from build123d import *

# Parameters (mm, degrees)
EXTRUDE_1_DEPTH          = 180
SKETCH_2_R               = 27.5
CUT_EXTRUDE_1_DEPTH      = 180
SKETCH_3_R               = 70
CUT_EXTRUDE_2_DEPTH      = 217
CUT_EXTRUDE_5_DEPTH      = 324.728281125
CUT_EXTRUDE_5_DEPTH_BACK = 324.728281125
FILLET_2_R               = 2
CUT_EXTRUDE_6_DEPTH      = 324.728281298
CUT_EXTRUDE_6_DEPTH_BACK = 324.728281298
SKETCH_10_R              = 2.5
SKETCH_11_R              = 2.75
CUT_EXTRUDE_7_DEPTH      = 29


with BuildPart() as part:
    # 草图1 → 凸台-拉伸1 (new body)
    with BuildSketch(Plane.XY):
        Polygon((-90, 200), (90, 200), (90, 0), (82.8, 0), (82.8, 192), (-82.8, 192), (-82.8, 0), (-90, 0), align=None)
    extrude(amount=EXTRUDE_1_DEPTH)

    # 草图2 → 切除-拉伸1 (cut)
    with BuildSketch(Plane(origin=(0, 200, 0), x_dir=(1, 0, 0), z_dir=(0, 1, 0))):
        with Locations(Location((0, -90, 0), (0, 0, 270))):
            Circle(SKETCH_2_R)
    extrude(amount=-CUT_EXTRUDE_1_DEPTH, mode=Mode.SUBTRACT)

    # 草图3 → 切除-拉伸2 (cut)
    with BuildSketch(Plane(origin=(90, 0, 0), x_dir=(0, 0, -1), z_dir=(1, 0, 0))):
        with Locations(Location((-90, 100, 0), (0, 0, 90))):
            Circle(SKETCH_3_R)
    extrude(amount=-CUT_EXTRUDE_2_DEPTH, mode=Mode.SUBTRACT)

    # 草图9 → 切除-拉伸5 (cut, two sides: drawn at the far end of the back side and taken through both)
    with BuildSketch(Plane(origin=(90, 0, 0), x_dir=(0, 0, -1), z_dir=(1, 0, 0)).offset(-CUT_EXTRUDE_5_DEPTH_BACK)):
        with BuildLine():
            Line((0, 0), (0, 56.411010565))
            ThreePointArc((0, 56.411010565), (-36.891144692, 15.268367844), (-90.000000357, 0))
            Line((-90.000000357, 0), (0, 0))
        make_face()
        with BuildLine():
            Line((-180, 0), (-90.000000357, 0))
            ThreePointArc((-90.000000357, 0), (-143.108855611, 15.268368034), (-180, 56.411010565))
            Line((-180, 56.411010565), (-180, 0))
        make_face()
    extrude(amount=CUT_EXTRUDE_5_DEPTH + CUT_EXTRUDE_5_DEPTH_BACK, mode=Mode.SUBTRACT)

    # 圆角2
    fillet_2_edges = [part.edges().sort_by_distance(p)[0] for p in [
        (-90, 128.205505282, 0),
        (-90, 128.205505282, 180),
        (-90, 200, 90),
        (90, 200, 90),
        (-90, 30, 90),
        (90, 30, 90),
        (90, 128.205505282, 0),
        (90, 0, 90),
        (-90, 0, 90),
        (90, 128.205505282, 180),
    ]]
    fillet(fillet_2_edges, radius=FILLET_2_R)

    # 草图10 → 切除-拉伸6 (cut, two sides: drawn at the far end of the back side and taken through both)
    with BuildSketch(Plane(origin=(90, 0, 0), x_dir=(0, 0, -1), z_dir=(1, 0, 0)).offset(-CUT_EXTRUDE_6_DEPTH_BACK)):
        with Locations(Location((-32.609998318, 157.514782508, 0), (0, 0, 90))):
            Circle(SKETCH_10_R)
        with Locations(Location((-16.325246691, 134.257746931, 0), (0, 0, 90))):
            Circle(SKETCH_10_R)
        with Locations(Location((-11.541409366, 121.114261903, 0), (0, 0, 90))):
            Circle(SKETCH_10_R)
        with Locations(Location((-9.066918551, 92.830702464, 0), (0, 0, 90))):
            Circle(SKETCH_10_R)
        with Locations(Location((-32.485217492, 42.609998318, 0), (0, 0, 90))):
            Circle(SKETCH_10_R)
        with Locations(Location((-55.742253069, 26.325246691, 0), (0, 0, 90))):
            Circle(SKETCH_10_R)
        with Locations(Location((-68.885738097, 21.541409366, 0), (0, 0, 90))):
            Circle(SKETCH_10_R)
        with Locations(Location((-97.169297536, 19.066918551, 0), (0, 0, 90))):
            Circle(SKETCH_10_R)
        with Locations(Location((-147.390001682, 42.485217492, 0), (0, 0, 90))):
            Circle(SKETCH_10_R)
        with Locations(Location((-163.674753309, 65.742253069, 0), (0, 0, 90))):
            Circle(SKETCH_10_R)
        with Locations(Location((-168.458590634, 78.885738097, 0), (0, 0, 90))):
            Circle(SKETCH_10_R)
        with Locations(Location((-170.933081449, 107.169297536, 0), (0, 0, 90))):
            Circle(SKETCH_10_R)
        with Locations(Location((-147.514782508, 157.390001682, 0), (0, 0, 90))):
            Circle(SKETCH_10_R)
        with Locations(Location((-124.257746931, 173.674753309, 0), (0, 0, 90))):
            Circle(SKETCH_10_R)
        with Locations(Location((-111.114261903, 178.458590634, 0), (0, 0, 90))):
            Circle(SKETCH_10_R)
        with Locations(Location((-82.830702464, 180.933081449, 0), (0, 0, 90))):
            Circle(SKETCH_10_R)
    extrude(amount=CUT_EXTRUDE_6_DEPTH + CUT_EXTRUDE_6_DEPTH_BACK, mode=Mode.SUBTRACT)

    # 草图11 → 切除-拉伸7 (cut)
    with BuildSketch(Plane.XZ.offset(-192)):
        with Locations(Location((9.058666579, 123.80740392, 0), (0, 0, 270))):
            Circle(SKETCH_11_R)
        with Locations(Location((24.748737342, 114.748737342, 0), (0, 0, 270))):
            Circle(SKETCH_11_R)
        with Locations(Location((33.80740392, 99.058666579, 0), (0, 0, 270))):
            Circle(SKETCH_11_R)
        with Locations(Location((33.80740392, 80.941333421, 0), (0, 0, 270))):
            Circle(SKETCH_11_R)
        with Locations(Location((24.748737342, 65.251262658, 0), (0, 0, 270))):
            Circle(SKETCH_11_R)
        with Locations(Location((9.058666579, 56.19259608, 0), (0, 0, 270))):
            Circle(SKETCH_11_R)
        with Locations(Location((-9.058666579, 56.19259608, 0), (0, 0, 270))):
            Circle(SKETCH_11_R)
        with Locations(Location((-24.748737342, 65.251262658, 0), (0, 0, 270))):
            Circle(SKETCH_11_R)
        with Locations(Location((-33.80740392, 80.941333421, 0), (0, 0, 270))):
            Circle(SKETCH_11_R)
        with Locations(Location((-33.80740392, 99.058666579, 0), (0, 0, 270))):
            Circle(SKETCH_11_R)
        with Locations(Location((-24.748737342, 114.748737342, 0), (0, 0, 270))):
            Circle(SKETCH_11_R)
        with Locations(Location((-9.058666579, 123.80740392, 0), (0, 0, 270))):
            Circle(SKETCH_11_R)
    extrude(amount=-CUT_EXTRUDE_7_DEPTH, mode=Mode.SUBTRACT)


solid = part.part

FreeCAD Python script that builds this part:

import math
import FreeCAD as App
import Part
import Sketcher
from FreeCAD import Vector
Q = App.Units.Quantity


def edges_at(feature, points):
    """Names of the edges that pass closest to the given points."""
    edges = feature.Shape.Edges
    near = lambda p: min(range(len(edges)), key=lambda i: edges[i].distToShape(Part.Vertex(*p))[0])
    return sorted({f"Edge{near(p) + 1}" for p in points})

doc = App.newDocument("Part")
body = doc.addObject("PartDesign::Body", "Body")

# Sketch on XY plane
sketch1 = body.newObject("Sketcher::SketchObject", "Sketch")
sketch1.AttachmentSupport = (doc.getObject("XY_Plane"), [""])
sketch1.MapMode = "FlatFace"
sketch1.addGeometry([
    Part.LineSegment(Vector(90, 200, 0), Vector(-90, 200, 0)),  # 0
    Part.LineSegment(Vector(-90, 200, 0), Vector(-90, 0, 0)),  # 1
    Part.LineSegment(Vector(-90, 0, 0), Vector(-83, 0, 0)),  # 2
    Part.LineSegment(Vector(-83, 0, 0), Vector(-83, 192, 0)),  # 3
    Part.LineSegment(Vector(-83, 192, 0), Vector(83, 192, 0)),  # 4
    Part.LineSegment(Vector(83, 192, 0), Vector(83, 0, 0)),  # 5
    Part.LineSegment(Vector(83, 0, 0), Vector(90, 0, 0)),  # 6
    Part.LineSegment(Vector(90, 0, 0), Vector(90, 200, 0)),  # 7
], False)
sketch1.addConstraint([
    Sketcher.Constraint("Coincident", 0, 2, 1, 1),
    Sketcher.Constraint("Coincident", 1, 2, 2, 1),
    Sketcher.Constraint("Coincident", 2, 2, 3, 1),
    Sketcher.Constraint("Coincident", 3, 2, 4, 1),
    Sketcher.Constraint("Coincident", 4, 2, 5, 1),
    Sketcher.Constraint("Coincident", 5, 2, 6, 1),
    Sketcher.Constraint("Coincident", 6, 2, 7, 1),
    Sketcher.Constraint("Coincident", 7, 2, 0, 1),
    Sketcher.Constraint("Horizontal", 0),
    Sketcher.Constraint("Vertical", 1),
    Sketcher.Constraint("Horizontal", 2),
    Sketcher.Constraint("Vertical", 3),
    Sketcher.Constraint("Horizontal", 4),
    Sketcher.Constraint("Vertical", 5),
    Sketcher.Constraint("Horizontal", 6),
    Sketcher.Constraint("Vertical", 7),
    Sketcher.Constraint("Symmetric", 2, 2, 5, 2, -1, 1),
    Sketcher.Constraint("Symmetric", 1, 2, 6, 2, -2),
    Sketcher.Constraint("DistanceX", 0, 2, 0, 1, Q("180 mm")),
    Sketcher.Constraint("DistanceY", 1, 2, 1, 1, Q("200 mm")),
    Sketcher.Constraint("DistanceY", 3, 1, 3, 2, Q("192 mm")),
    Sketcher.Constraint("DistanceX", 2, 1, 2, 2, Q("7.2 mm")),
])
pad1 = body.newObject("PartDesign::Pad", "Pad")
pad1.Profile = sketch1
pad1.Length = 180

# Sketch on XZ plane
sketch2 = body.newObject("Sketcher::SketchObject", "Sketch001")
sketch2.AttachmentSupport = (doc.getObject("XZ_Plane"), [""])
sketch2.MapMode = "FlatFace"
sketch2.AttachmentOffset = App.Placement(Vector(0, 0, -200), App.Rotation())
sketch2.addGeometry(Part.Circle(Vector(0, 90, 0), Vector(0, 0, 1), 28), False)
sketch2.addConstraint([
    Sketcher.Constraint("PointOnObject", 0, 3, -2),
    Sketcher.Constraint("Diameter", 0, Q("55 mm")),
    Sketcher.Constraint("DistanceY", -1, 1, 0, 3, Q("90 mm")),
])
pocket1 = body.newObject("PartDesign::Pocket", "Pocket")
pocket1.Profile = sketch2
pocket1.Length = 180
pocket1.Reversed = True

# Sketch on YZ plane
sketch3 = body.newObject("Sketcher::SketchObject", "Sketch002")
sketch3.AttachmentSupport = (doc.getObject("YZ_Plane"), [""])
sketch3.MapMode = "FlatFace"
sketch3.AttachmentOffset = App.Placement(Vector(0, 0, 90), App.Rotation())
sketch3.addGeometry(Part.Circle(Vector(100, 90, 0), Vector(0, 0, 1), 70), False)
sketch3.addConstraint([
    Sketcher.Constraint("Diameter", 0, Q("140 mm")),
    Sketcher.Constraint("DistanceX", -1, 1, 0, 3, Q("100 mm")),
    Sketcher.Constraint("DistanceY", -1, 1, 0, 3, Q("90 mm")),
])
pocket2 = body.newObject("PartDesign::Pocket", "Pocket001")
pocket2.Profile = sketch3
pocket2.Length = 217

# Sketch on YZ plane
sketch4 = body.newObject("Sketcher::SketchObject", "Sketch003")
sketch4.AttachmentSupport = (doc.getObject("YZ_Plane"), [""])
sketch4.MapMode = "FlatFace"
sketch4.AttachmentOffset = App.Placement(Vector(0, 0, 90), App.Rotation())
sketch4.addGeometry([
    Part.LineSegment(Vector(0, 0, 0), Vector(56, 0, 0)),  # 0
    Part.ArcOfCircle(Part.Circle(Vector(100, 90, 0), Vector(0, 0, 1), 100), math.radians(180), math.radians(244)),  # 1
    Part.LineSegment(Vector(0, 90, 0), Vector(0, 0, 0)),  # 2
    Part.LineSegment(Vector(0, 180, 0), Vector(0, 90, 0)),  # 3
    Part.ArcOfCircle(Part.Circle(Vector(100, 90, 0), Vector(0, 0, 1), 100), math.radians(116), math.radians(180)),  # 4
    Part.LineSegment(Vector(56, 180, 0), Vector(0, 180, 0)),  # 5
], False)
sketch4.addConstraint([
    Sketcher.Constraint("Coincident", 0, 2, 1, 2),
    Sketcher.Constraint("Tangent", 1, 1, 2, 1),
    Sketcher.Constraint("Coincident", 2, 2, 0, 1),
    Sketcher.Constraint("Tangent", 3, 2, 4, 2),
    Sketcher.Constraint("Coincident", 4, 1, 5, 1),
    Sketcher.Constraint("Coincident", 5, 2, 3, 1),
    Sketcher.Constraint("Horizontal", 0),
    Sketcher.Constraint("Vertical", 2),
    Sketcher.Constraint("Vertical", 3),
    Sketcher.Constraint("Horizontal", 5),
    Sketcher.Constraint("Coincident", 2, 2, -1, 1),
    Sketcher.Constraint("Coincident", 4, 3, 1, 3),
    Sketcher.Constraint("Equal", 1, 4),
    Sketcher.Constraint("Vertical", 0, 2, 4, 1),
    Sketcher.Constraint("Radius", 1, Q("100 mm")),
    Sketcher.Constraint("DistanceY", 2, 2, 2, 1, Q("90 mm")),
])
pocket3 = body.newObject("PartDesign::Pocket", "Pocket002")
pocket3.Profile = sketch4
pocket3.Type = "ThroughAll"
pocket3.Midplane = True
doc.recompute()

fillet = body.newObject("PartDesign::Fillet", "Fillet")
fillet.Base = (pocket3, edges_at(pocket3, [
    (-90, 128.206, 0),
    (-90, 128.206, 180),
    (-90, 200, 90),
    (90, 200, 90),
    (-90, 30, 90),
    (90, 30, 90),
    (90, 128.206, 0),
    (90, 15.268, 36.891),
    (-90, 15.268, 36.891),
    (90, 128.206, 180),
]))
fillet.Radius = 2

# Sketch on YZ plane
sketch5 = body.newObject("Sketcher::SketchObject", "Sketch004")
sketch5.AttachmentSupport = (doc.getObject("YZ_Plane"), [""])
sketch5.MapMode = "FlatFace"
sketch5.AttachmentOffset = App.Placement(Vector(0, 0, 90), App.Rotation())
sketch5.addGeometry([
    Part.Circle(Vector(157.5, 32.6, 0), Vector(0, 0, 1), 2.5),  # 0
    Part.Circle(Vector(134.3, 16.3, 0), Vector(0, 0, 1), 2.5),  # 1
    Part.Circle(Vector(121.1, 11.5, 0), Vector(0, 0, 1), 2.5),  # 2
    Part.Circle(Vector(92.8, 9.1, 0), Vector(0, 0, 1), 2.5),  # 3
    Part.Circle(Vector(42.6, 32.5, 0), Vector(0, 0, 1), 2.5),  # 4
    Part.Circle(Vector(26.3, 55.7, 0), Vector(0, 0, 1), 2.5),  # 5
    Part.Circle(Vector(21.5, 68.9, 0), Vector(0, 0, 1), 2.5),  # 6
    Part.Circle(Vector(19.1, 97.2, 0), Vector(0, 0, 1), 2.5),  # 7
    Part.Circle(Vector(42.5, 147.4, 0), Vector(0, 0, 1), 2.5),  # 8
    Part.Circle(Vector(65.7, 163.7, 0), Vector(0, 0, 1), 2.5),  # 9
    Part.Circle(Vector(78.9, 168.5, 0), Vector(0, 0, 1), 2.5),  # 10
    Part.Circle(Vector(107.2, 170.9, 0), Vector(0, 0, 1), 2.5),  # 11
    Part.Circle(Vector(157.4, 147.5, 0), Vector(0, 0, 1), 2.5),  # 12
    Part.Circle(Vector(173.7, 124.3, 0), Vector(0, 0, 1), 2.5),  # 13
    Part.Circle(Vector(178.5, 111.1, 0), Vector(0, 0, 1), 2.5),  # 14
    Part.Circle(Vector(180.9, 82.8, 0), Vector(0, 0, 1), 2.5),  # 15
], False)
sketch5.addConstraint([
    Sketcher.Constraint("Equal", 0, 1),
    Sketcher.Constraint("Equal", 1, 2),
    Sketcher.Constraint("Equal", 2, 3),
    Sketcher.Constraint("Equal", 3, 4),
    Sketcher.Constraint("Equal", 4, 5),
    Sketcher.Constraint("Equal", 5, 6),
    Sketcher.Constraint("Equal", 6, 7),
    Sketcher.Constraint("Equal", 7, 8),
    Sketcher.Constraint("Equal", 8, 9),
    Sketcher.Constraint("Equal", 9, 10),
    Sketcher.Constraint("Equal", 10, 11),
    Sketcher.Constraint("Equal", 11, 12),
    Sketcher.Constraint("Equal", 12, 13),
    Sketcher.Constraint("Equal", 13, 14),
    Sketcher.Constraint("Equal", 14, 15),
    Sketcher.Constraint("Diameter", 0, Q("5 mm")),
    Sketcher.Constraint("DistanceY", -1, 1, 0, 3, Q("32.609998 mm")),
    Sketcher.Constraint("DistanceX", -1, 1, 4, 3, Q("42.609998 mm")),
    Sketcher.Constraint("DistanceY", -1, 1, 8, 3, Q("147.390002 mm")),
    Sketcher.Constraint("DistanceX", -1, 1, 12, 3, Q("157.390002 mm")),
    Sketcher.Constraint("DistanceY", 3, 3, 4, 3, Q("23.418299 mm")),
    Sketcher.Constraint("DistanceX", 5, 3, 1, 3, Q("107.9325 mm")),
    Sketcher.Constraint("DistanceX", 7, 3, 8, 3, Q("23.418299 mm")),
    Sketcher.Constraint("DistanceY", 5, 3, 9, 3, Q("107.9325 mm")),
    Sketcher.Constraint("DistanceY", 12, 3, 11, 3, Q("23.418299 mm")),
    Sketcher.Constraint("DistanceY", 1, 3, 13, 3, Q("107.9325 mm")),
    Sketcher.Constraint("DistanceX", 0, 3, 15, 3, Q("23.418299 mm")),
    Sketcher.Constraint("DistanceX", -1, 1, 2, 3, Q("121.114262 mm")),
    Sketcher.Constraint("DistanceY", -1, 1, 2, 3, Q("11.541409 mm")),
    Sketcher.Constraint("DistanceY", -1, 1, 3, 3, Q("9.066919 mm")),
    Sketcher.Constraint("DistanceX", -1, 1, 6, 3, Q("21.541409 mm")),
    Sketcher.Constraint("DistanceY", -1, 1, 6, 3, Q("68.885738 mm")),
    Sketcher.Constraint("DistanceX", -1, 1, 7, 3, Q("19.066919 mm")),
    Sketcher.Constraint("DistanceX", -1, 1, 10, 3, Q("78.885738 mm")),
    Sketcher.Constraint("DistanceY", -1, 1, 10, 3, Q("168.458591 mm")),
    Sketcher.Constraint("DistanceY", -1, 1, 11, 3, Q("170.933081 mm")),
    Sketcher.Constraint("DistanceX", -1, 1, 14, 3, Q("178.458591 mm")),
    Sketcher.Constraint("DistanceY", -1, 1, 14, 3, Q("111.114262 mm")),
    Sketcher.Constraint("DistanceX", -1, 1, 15, 3, Q("180.933081 mm")),
    Sketcher.Constraint("DistanceY", 1, 3, 0, 3, Q("16.284752 mm")),
    Sketcher.Constraint("DistanceX", 3, 3, 2, 3, Q("28.283559 mm")),
    Sketcher.Constraint("DistanceX", 4, 3, 1, 3, Q("91.647749 mm")),
    Sketcher.Constraint("DistanceY", 6, 3, 7, 3, Q("28.283559 mm")),
    Sketcher.Constraint("DistanceY", 5, 3, 8, 3, Q("91.647749 mm")),
    Sketcher.Constraint("DistanceX", 10, 3, 11, 3, Q("28.283559 mm")),
    Sketcher.Constraint("DistanceX", 9, 3, 12, 3, Q("91.647749 mm")),
    Sketcher.Constraint("DistanceX", 12, 3, 13, 3, Q("16.284752 mm")),
    Sketcher.Constraint("DistanceY", 15, 3, 14, 3, Q("28.283559 mm")),
])
pocket4 = body.newObject("PartDesign::Pocket", "Pocket003")
pocket4.Profile = sketch5
pocket4.Type = "ThroughAll"
pocket4.Midplane = True

# Sketch on XZ plane
sketch6 = body.newObject("Sketcher::SketchObject", "Sketch005")
sketch6.AttachmentSupport = (doc.getObject("XZ_Plane"), [""])
sketch6.MapMode = "FlatFace"
sketch6.AttachmentOffset = App.Placement(Vector(0, 0, -192), App.Rotation())
sketch6.addGeometry([
    Part.Circle(Vector(9.1, 123.8, 0), Vector(0, 0, 1), 2.8),  # 0
    Part.Circle(Vector(24.7, 114.7, 0), Vector(0, 0, 1), 2.8),  # 1
    Part.Circle(Vector(33.8, 99.1, 0), Vector(0, 0, 1), 2.8),  # 2
    Part.Circle(Vector(33.8, 80.9, 0), Vector(0, 0, 1), 2.8),  # 3
    Part.Circle(Vector(24.7, 65.3, 0), Vector(0, 0, 1), 2.8),  # 4
    Part.Circle(Vector(9.1, 56.2, 0), Vector(0, 0, 1), 2.8),  # 5
    Part.Circle(Vector(-9.1, 56.2, 0), Vector(0, 0, 1), 2.8),  # 6
    Part.Circle(Vector(-24.7, 65.3, 0), Vector(0, 0, 1), 2.8),  # 7
    Part.Circle(Vector(-33.8, 80.9, 0), Vector(0, 0, 1), 2.8),  # 8
    Part.Circle(Vector(-33.8, 99.1, 0), Vector(0, 0, 1), 2.8),  # 9
    Part.Circle(Vector(-24.7, 114.7, 0), Vector(0, 0, 1), 2.8),  # 10
    Part.Circle(Vector(-9.1, 123.8, 0), Vector(0, 0, 1), 2.8),  # 11
], False)
sketch6.addConstraint([
    Sketcher.Constraint("Equal", 0, 1),
    Sketcher.Constraint("Equal", 1, 2),
    Sketcher.Constraint("Equal", 2, 3),
    Sketcher.Constraint("Equal", 3, 4),
    Sketcher.Constraint("Equal", 4, 5),
    Sketcher.Constraint("Equal", 5, 6),
    Sketcher.Constraint("Equal", 6, 7),
    Sketcher.Constraint("Equal", 7, 8),
    Sketcher.Constraint("Equal", 8, 9),
    Sketcher.Constraint("Equal", 9, 10),
    Sketcher.Constraint("Equal", 10, 11),
    Sketcher.Constraint("Symmetric", 5, 3, 6, 3, -2),
    Sketcher.Constraint("Symmetric", 4, 3, 7, 3, -2),
    Sketcher.Constraint("Symmetric", 3, 3, 8, 3, -2),
    Sketcher.Constraint("Symmetric", 2, 3, 9, 3, -2),
    Sketcher.Constraint("Symmetric", 1, 3, 10, 3, -2),
    Sketcher.Constraint("Symmetric", 0, 3, 11, 3, -2),
    Sketcher.Constraint("Vertical", 2, 3, 3, 3),
    Sketcher.Constraint("Vertical", 1, 3, 4, 3),
    Sketcher.Constraint("Vertical", 0, 3, 5, 3),
    Sketcher.Constraint("Diameter", 0, Q("5.5 mm")),
    Sketcher.Constraint("DistanceX", 0, 3, 1, 3, Q("15.690071 mm")),
    Sketcher.Constraint("DistanceY", 2, 3, 1, 3, Q("15.690071 mm")),
    Sketcher.Constraint("DistanceY", 3, 3, 0, 3, Q("42.86607 mm")),
    Sketcher.Constraint("DistanceY", 4, 3, 3, 3, Q("15.690071 mm")),
    Sketcher.Constraint("DistanceY", 5, 3, 2, 3, Q("42.86607 mm")),
    Sketcher.Constraint("DistanceX", 6, 3, 3, 3, Q("42.86607 mm")),
    Sketcher.Constraint("DistanceX", -1, 1, 0, 3, Q("9.058667 mm")),
    Sketcher.Constraint("DistanceY", -1, 1, 0, 3, Q("123.807404 mm")),
    Sketcher.Constraint("DistanceY", -1, 1, 1, 3, Q("114.748737 mm")),
])
pocket5 = body.newObject("PartDesign::Pocket", "Pocket004")
pocket5.Profile = sketch6
pocket5.Length = 29

doc.recompute()
